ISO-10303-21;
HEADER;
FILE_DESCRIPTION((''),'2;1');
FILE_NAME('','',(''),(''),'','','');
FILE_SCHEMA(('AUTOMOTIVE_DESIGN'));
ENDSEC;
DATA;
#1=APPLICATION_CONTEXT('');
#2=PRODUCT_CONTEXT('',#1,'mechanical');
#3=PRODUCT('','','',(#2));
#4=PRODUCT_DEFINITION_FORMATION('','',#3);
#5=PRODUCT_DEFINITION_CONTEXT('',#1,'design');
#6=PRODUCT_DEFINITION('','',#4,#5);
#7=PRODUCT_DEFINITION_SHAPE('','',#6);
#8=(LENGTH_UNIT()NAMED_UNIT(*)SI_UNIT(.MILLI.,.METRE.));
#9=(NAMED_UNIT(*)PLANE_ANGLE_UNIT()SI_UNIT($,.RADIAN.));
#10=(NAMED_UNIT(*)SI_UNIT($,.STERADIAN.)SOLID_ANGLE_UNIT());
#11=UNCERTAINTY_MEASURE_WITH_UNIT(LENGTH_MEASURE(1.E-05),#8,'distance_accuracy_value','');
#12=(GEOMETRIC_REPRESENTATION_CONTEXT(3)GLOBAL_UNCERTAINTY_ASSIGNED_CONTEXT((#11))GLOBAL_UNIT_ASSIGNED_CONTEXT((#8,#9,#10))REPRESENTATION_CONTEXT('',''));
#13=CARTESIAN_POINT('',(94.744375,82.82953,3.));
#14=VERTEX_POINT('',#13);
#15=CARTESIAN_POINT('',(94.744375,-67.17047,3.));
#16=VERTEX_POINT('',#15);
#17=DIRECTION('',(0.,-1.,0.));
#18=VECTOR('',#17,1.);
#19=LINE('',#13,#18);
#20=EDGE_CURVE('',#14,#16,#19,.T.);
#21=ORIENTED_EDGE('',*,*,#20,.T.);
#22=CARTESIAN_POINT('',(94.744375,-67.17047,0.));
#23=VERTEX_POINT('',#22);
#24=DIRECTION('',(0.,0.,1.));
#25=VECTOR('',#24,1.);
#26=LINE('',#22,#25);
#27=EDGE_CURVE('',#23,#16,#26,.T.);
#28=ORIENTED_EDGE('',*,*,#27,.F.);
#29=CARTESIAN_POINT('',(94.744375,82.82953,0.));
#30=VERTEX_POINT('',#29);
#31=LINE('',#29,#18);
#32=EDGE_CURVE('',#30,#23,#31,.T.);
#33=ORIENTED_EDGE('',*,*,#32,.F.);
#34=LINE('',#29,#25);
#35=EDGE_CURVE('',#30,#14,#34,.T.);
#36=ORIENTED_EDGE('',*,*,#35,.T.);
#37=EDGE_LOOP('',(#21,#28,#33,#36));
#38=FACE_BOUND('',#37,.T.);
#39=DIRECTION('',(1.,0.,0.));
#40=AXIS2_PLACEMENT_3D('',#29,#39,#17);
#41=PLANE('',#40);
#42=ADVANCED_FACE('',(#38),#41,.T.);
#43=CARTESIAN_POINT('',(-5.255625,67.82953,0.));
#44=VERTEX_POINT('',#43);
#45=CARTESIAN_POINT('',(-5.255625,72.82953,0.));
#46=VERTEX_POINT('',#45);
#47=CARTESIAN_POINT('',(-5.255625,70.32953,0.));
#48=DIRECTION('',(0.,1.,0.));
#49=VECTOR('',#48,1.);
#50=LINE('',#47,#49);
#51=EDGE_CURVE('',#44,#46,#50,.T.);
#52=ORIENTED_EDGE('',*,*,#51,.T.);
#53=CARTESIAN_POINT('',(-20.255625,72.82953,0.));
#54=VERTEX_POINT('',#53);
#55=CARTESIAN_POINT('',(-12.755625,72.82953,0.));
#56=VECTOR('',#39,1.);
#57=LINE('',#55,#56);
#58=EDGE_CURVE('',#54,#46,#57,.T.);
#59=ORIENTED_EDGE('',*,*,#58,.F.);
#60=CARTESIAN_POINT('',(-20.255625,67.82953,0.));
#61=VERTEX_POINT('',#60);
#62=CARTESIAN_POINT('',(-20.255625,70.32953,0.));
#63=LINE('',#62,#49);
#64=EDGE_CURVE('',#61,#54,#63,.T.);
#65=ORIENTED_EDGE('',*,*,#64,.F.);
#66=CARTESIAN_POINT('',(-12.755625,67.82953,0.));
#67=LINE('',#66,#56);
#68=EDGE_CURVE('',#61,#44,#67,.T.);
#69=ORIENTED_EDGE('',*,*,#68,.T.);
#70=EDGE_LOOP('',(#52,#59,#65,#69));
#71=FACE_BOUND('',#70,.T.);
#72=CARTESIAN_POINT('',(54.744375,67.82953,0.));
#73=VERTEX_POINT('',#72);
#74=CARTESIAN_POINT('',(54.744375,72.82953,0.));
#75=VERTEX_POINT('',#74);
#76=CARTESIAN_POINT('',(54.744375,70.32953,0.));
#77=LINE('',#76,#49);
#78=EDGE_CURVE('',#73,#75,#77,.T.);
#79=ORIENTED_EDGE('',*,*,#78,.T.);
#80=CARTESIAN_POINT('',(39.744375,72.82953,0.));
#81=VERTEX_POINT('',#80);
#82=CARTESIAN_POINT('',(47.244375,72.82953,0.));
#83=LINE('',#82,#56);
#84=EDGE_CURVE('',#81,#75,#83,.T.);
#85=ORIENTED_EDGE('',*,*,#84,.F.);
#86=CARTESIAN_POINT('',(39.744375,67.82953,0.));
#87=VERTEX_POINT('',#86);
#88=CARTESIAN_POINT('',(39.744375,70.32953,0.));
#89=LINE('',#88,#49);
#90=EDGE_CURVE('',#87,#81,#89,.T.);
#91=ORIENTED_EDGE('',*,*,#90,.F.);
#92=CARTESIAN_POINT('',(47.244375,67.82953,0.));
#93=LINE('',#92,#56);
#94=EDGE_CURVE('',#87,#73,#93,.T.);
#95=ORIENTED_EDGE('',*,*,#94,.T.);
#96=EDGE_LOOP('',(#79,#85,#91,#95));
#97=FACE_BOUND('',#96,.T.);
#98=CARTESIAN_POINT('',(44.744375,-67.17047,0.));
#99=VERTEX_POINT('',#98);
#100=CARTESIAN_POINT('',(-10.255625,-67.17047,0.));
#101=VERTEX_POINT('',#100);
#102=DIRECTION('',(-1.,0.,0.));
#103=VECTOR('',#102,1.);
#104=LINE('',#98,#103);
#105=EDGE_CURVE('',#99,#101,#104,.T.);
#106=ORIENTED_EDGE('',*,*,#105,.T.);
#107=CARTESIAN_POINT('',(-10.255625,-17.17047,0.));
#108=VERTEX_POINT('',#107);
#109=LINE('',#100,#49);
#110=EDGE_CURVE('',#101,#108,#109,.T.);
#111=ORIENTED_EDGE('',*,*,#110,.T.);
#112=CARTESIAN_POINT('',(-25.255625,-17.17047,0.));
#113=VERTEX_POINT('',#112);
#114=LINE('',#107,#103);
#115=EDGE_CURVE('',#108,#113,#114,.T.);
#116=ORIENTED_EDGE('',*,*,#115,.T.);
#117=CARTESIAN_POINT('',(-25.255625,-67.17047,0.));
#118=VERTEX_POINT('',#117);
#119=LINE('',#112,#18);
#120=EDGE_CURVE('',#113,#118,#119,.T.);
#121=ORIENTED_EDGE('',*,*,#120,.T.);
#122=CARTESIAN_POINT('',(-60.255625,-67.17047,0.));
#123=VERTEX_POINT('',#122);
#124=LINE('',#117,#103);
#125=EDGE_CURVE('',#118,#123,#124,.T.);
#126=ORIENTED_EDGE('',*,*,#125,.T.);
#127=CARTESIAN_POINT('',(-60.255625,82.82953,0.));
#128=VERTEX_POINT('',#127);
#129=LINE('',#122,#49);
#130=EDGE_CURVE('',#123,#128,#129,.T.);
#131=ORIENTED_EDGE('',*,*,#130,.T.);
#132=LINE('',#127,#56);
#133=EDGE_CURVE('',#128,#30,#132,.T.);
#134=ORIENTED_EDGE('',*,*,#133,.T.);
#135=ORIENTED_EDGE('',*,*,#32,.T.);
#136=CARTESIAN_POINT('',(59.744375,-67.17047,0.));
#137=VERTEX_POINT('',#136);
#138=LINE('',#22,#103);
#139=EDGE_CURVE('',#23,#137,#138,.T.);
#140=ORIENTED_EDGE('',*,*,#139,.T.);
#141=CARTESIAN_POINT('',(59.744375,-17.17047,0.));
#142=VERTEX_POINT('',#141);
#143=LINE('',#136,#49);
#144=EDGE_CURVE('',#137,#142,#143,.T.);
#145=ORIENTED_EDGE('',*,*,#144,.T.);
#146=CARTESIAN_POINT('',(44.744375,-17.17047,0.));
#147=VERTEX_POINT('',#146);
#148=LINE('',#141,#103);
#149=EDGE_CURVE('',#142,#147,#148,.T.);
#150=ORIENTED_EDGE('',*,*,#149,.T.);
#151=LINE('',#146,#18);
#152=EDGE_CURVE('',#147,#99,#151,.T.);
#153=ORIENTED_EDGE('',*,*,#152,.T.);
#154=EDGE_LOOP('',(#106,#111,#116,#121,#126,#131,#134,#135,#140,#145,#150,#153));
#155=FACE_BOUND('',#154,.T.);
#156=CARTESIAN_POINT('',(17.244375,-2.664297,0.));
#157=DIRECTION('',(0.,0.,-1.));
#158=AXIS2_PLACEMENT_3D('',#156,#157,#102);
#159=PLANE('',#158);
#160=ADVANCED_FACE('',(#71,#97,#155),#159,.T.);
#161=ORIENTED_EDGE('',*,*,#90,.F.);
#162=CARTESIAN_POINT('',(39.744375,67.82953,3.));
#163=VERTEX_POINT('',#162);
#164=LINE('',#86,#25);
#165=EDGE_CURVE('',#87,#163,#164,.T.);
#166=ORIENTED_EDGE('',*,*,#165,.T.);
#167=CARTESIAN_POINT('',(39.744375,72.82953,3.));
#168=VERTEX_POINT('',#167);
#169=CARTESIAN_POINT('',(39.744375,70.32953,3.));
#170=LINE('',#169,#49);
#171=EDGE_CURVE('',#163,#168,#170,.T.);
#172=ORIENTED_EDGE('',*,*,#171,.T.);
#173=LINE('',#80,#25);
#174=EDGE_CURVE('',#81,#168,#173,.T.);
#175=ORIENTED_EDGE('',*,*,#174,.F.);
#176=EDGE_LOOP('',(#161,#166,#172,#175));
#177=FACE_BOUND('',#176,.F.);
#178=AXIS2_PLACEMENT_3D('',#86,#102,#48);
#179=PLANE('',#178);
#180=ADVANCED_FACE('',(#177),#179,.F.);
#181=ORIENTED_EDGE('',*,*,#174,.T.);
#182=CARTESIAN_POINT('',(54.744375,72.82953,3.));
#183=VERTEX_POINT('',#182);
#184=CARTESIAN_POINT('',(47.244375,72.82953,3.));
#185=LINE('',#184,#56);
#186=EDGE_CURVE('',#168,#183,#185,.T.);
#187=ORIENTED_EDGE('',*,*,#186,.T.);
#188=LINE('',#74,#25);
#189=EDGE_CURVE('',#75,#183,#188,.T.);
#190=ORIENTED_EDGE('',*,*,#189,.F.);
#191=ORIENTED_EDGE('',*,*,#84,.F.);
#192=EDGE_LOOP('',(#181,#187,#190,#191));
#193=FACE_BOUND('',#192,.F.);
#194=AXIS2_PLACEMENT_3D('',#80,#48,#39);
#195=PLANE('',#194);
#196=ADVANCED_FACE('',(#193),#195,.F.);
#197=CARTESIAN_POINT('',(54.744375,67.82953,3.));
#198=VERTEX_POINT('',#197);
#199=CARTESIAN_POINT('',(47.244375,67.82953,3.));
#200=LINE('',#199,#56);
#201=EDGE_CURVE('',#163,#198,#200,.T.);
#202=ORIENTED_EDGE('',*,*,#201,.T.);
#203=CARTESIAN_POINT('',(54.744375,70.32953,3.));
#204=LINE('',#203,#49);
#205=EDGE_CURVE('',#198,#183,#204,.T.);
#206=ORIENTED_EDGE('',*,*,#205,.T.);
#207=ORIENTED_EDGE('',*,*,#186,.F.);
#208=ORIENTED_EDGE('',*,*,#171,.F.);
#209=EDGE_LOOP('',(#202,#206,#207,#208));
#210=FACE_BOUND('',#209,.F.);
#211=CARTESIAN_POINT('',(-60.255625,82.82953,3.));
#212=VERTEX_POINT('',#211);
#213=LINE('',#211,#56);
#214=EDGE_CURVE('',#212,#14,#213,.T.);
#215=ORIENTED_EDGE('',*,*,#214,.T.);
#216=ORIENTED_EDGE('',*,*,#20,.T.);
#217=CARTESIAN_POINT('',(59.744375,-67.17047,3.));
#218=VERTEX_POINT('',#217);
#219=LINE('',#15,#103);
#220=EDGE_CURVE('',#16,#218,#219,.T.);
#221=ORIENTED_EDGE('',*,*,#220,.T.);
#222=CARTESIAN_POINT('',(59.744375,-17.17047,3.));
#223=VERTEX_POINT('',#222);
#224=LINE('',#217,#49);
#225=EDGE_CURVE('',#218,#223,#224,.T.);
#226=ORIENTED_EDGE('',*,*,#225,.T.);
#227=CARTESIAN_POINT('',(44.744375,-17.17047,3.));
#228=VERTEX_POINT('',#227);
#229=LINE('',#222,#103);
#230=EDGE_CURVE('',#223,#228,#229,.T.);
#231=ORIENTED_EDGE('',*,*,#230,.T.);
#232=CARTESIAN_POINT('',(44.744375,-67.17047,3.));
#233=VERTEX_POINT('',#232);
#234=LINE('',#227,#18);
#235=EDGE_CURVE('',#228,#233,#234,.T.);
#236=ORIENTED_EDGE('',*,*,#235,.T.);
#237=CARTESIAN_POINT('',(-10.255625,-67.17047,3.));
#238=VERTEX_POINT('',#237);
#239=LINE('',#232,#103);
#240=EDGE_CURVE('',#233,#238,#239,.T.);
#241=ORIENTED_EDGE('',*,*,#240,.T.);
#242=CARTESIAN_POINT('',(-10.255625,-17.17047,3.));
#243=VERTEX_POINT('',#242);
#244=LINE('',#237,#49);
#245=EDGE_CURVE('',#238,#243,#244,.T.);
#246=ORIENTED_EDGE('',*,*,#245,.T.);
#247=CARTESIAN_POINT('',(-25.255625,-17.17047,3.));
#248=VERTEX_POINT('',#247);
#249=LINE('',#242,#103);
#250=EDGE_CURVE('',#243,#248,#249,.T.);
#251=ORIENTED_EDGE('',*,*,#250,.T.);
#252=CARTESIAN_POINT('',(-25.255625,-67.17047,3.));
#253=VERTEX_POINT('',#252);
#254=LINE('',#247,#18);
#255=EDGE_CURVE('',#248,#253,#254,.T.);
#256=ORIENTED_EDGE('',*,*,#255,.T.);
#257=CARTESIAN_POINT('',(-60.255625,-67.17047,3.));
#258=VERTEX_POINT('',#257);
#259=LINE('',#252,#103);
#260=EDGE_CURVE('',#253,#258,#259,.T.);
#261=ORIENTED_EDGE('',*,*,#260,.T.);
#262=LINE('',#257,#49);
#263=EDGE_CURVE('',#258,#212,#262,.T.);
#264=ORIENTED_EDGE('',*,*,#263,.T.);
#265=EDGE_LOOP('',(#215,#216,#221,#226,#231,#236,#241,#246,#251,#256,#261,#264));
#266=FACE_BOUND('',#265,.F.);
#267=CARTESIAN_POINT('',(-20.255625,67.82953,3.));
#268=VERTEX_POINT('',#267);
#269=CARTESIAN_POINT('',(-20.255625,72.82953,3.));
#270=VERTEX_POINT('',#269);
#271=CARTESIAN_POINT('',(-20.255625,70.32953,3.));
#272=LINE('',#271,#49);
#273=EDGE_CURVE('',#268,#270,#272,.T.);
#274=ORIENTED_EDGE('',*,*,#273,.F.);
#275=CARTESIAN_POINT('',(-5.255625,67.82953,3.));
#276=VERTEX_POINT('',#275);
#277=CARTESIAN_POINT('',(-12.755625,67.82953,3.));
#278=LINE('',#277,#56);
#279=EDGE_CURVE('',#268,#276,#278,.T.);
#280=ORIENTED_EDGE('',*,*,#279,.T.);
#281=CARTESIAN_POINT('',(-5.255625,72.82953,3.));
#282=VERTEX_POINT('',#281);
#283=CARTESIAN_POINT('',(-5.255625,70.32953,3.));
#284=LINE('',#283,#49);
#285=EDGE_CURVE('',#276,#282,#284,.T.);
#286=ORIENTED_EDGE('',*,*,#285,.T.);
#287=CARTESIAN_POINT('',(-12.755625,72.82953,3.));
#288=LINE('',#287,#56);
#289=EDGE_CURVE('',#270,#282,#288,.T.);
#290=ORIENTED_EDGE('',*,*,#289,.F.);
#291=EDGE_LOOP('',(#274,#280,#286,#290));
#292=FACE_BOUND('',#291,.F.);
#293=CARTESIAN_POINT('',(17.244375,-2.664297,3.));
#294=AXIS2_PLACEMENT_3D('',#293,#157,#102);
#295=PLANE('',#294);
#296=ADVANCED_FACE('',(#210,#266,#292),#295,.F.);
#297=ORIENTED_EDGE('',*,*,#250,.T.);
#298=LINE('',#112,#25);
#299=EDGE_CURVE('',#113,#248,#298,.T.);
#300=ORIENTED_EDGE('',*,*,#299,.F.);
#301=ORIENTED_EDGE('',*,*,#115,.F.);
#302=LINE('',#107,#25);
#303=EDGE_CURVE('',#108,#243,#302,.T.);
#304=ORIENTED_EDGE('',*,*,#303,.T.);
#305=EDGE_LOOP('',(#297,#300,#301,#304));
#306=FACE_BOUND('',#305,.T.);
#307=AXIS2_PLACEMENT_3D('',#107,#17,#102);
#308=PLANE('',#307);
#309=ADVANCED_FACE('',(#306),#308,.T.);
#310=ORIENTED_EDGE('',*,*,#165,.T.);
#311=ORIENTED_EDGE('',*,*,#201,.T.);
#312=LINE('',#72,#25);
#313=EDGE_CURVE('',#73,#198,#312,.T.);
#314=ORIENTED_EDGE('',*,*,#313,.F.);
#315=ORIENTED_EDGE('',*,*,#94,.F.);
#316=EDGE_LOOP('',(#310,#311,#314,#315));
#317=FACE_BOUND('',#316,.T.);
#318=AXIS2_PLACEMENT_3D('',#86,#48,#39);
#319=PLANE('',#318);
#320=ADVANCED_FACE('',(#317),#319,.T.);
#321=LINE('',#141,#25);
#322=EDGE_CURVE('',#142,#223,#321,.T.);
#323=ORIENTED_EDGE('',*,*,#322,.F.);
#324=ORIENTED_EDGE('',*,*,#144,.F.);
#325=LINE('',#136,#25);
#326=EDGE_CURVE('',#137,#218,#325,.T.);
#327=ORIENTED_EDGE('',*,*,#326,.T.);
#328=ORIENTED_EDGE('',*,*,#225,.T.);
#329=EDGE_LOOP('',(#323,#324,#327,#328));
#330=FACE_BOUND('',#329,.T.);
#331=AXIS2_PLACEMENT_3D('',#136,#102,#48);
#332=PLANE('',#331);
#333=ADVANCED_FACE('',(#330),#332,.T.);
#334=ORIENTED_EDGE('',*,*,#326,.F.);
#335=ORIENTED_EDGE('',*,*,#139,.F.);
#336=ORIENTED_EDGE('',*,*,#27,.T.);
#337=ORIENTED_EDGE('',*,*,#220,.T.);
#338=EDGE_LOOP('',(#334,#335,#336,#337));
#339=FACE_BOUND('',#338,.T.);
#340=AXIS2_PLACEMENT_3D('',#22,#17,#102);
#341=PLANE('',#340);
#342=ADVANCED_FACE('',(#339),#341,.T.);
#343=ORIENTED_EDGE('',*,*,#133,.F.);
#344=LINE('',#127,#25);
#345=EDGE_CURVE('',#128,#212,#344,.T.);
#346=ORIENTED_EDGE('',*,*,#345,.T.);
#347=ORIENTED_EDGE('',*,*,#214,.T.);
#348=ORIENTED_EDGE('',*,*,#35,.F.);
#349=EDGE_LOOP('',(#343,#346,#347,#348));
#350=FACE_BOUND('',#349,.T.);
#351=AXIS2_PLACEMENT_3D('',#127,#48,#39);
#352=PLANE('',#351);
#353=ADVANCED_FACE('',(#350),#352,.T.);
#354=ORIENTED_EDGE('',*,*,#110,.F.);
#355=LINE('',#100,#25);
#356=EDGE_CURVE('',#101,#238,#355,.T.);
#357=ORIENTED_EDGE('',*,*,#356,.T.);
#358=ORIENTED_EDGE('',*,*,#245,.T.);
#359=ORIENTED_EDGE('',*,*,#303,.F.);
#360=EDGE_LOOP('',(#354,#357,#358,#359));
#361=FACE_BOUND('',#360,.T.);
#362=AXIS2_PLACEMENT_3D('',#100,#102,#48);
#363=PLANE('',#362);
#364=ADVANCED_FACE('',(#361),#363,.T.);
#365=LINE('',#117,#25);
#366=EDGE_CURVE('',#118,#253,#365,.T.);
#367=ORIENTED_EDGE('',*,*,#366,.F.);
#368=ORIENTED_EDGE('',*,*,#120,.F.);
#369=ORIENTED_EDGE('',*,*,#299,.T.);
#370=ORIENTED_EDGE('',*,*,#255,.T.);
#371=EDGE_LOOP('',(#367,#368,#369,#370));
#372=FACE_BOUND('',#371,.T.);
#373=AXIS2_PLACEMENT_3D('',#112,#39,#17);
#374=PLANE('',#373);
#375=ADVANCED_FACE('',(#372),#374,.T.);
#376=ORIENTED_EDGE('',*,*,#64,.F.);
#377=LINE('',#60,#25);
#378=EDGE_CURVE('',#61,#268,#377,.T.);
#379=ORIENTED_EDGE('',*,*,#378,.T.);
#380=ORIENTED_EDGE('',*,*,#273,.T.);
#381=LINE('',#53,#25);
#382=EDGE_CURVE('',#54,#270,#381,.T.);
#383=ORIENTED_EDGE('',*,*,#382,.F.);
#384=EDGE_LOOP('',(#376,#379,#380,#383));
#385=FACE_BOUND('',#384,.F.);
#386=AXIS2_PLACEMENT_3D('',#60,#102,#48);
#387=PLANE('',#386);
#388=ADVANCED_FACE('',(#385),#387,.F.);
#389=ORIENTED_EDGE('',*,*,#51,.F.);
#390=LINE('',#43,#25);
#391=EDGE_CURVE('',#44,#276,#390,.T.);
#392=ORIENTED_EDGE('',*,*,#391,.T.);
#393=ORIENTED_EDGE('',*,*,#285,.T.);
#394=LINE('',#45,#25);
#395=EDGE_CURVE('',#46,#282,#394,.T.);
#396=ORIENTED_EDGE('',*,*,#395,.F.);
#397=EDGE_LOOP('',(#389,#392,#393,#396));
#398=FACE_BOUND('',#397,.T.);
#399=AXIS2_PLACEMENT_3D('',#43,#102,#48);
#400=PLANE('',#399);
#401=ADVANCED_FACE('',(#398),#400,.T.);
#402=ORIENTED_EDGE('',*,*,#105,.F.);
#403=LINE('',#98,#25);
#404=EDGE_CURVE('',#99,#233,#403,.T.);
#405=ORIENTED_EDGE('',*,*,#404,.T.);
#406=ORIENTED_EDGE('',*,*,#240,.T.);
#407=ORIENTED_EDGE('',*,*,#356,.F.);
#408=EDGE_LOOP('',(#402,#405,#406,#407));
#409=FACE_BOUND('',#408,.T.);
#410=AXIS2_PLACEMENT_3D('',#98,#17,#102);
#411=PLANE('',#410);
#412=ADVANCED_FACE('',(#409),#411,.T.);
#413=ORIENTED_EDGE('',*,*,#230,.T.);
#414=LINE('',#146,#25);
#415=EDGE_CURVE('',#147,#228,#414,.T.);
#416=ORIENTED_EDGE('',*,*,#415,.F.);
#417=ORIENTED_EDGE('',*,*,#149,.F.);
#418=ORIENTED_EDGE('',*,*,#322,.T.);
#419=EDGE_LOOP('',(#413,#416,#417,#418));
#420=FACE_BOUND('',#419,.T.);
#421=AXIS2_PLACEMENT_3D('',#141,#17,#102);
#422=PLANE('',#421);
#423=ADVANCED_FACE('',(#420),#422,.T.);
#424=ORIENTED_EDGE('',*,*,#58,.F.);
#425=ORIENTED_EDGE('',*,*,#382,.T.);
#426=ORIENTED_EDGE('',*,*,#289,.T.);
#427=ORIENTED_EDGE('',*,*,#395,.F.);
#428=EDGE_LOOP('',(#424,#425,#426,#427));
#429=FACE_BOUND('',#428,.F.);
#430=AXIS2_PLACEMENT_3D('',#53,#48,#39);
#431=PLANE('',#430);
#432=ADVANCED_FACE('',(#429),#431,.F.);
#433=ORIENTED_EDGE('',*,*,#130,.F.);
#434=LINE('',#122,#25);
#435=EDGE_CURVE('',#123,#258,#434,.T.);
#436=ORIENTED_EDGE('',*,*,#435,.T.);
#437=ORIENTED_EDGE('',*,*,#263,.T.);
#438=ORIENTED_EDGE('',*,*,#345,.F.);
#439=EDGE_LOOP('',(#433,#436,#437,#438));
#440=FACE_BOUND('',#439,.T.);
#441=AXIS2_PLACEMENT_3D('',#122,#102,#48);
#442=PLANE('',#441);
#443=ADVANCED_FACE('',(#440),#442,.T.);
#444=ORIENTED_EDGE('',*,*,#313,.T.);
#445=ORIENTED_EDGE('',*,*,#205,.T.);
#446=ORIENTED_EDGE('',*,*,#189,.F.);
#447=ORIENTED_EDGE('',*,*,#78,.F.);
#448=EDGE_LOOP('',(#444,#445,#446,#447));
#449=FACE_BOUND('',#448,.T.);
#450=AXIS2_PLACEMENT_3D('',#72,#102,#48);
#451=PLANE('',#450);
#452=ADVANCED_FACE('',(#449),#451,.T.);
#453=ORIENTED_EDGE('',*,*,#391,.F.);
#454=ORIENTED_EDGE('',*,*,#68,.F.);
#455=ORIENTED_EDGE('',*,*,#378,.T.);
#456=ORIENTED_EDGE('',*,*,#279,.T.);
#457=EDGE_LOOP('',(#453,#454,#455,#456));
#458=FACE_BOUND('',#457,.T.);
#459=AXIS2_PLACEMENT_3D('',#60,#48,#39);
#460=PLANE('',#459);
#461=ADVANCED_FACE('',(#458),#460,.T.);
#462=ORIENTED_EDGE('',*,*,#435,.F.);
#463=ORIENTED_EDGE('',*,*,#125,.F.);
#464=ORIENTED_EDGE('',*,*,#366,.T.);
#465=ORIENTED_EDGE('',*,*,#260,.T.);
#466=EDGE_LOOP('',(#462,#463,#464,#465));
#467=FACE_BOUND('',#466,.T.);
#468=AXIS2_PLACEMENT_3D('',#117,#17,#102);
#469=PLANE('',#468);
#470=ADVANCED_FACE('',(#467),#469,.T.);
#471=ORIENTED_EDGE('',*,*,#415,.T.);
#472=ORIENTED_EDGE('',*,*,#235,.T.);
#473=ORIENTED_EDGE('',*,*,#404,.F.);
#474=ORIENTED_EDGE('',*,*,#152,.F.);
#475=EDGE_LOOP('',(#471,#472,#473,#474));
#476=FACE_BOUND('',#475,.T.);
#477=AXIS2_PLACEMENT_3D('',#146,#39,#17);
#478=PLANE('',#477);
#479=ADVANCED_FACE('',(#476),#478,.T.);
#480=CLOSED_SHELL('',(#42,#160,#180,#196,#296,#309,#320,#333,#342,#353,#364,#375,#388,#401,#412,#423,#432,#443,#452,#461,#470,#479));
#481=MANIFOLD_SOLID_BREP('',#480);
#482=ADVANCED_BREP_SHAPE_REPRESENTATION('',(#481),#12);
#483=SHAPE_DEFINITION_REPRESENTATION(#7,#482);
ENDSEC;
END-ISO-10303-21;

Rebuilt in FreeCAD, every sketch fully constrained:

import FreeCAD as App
import Part
import Sketcher

V = App.Vector


def add_polygon(sketch, points):
    """Adds a closed chain of lines whose ends are joined by coincident constraints."""
    first, n = sketch.GeometryCount, len(points)
    for a, b in zip(points, points[1:] + points[:1]):
        sketch.addGeometry(Part.LineSegment(App.Vector(*a, 0), App.Vector(*b, 0)), False)
    for i in range(n):
        sketch.addConstraint(Sketcher.Constraint("Coincident", first + i, 2, first + (i + 1) % n, 1))

doc = App.newDocument("Part")
body = doc.addObject("PartDesign::Body", "Body")

sketch1 = body.newObject("Sketcher::SketchObject", "Sketch")
sketch1.AttachmentSupport = (doc.getObject("XY_Plane"), [""])
sketch1.MapMode = "FlatFace"
add_polygon(sketch1, [(95, 83), (-60, 83), (-60, -67), (-25, -67), (-25, -17), (-10, -17), (-10, -67), (45, -67), (45, -17), (60, -17), (60, -67), (95, -67)])
add_polygon(sketch1, [(40, 68), (40, 73), (55, 73), (55, 68)])
add_polygon(sketch1, [(-20, 68), (-20, 73), (-5, 73), (-5, 68)])
sketch1.addConstraint([
    Sketcher.Constraint("Horizontal", 0),
    Sketcher.Constraint("Vertical", 1),
    Sketcher.Constraint("Horizontal", 2),
    Sketcher.Constraint("Vertical", 3),
    Sketcher.Constraint("Horizontal", 4),
    Sketcher.Constraint("Vertical", 5),
    Sketcher.Constraint("Horizontal", 6),
    Sketcher.Constraint("Vertical", 7),
    Sketcher.Constraint("Horizontal", 8),
    Sketcher.Constraint("Vertical", 9),
    Sketcher.Constraint("Horizontal", 10),
    Sketcher.Constraint("Vertical", 11),
    Sketcher.Constraint("Vertical", 12),
    Sketcher.Constraint("Horizontal", 13),
    Sketcher.Constraint("Vertical", 14),
    Sketcher.Constraint("Horizontal", 15),
    Sketcher.Constraint("Vertical", 16),
    Sketcher.Constraint("Horizontal", 17),
    Sketcher.Constraint("Vertical", 18),
    Sketcher.Constraint("Horizontal", 19),
    Sketcher.Constraint("Horizontal", 2, 2, 5, 2),
    Sketcher.Constraint("Horizontal", 4, 2, 7, 2),
    Sketcher.Constraint("Horizontal", 6, 2, 9, 2),
    Sketcher.Constraint("Horizontal", 13, 2, 16, 2),
    Sketcher.Constraint("Horizontal", 15, 2, 18, 2),
    Sketcher.Constraint("Equal", 4, 8),
    Sketcher.Constraint("Equal", 2, 10),
    Sketcher.Constraint("Equal", 8, 13),
    Sketcher.Constraint("Equal", 15, 17),
    Sketcher.Constraint("DistanceX", 0, 2, 0, 1, 155.0),
    Sketcher.Constraint("DistanceX", 2, 1, 2, 2, 35.0),
    Sketcher.Constraint("DistanceX", 4, 1, 4, 2, 15.0),
    Sketcher.Constraint("DistanceY", 1, 2, 1, 1, 150.0),
    Sketcher.Constraint("DistanceY", 3, 1, 3, 2, 50.0),
    Sketcher.Constraint("DistanceY", 12, 1, 12, 2, 5.0),
    Sketcher.Constraint("DistanceX", 12, 2, 11, 2, 55.0),
    Sketcher.Constraint("DistanceY", 12, 2, 11, 2, 10.0),
    Sketcher.Constraint("DistanceX", 0, 2, 16, 2, 40.0),
    Sketcher.Constraint("DistanceY", -1, 1, 0, 2, 82.82953),
    Sketcher.Constraint("DistanceX", 0, 2, -1, 1, 60.255625),
])
pad1 = body.newObject("PartDesign::Pad", "Pad")
pad1.Profile = sketch1
pad1.Length = 3

doc.recompute()
